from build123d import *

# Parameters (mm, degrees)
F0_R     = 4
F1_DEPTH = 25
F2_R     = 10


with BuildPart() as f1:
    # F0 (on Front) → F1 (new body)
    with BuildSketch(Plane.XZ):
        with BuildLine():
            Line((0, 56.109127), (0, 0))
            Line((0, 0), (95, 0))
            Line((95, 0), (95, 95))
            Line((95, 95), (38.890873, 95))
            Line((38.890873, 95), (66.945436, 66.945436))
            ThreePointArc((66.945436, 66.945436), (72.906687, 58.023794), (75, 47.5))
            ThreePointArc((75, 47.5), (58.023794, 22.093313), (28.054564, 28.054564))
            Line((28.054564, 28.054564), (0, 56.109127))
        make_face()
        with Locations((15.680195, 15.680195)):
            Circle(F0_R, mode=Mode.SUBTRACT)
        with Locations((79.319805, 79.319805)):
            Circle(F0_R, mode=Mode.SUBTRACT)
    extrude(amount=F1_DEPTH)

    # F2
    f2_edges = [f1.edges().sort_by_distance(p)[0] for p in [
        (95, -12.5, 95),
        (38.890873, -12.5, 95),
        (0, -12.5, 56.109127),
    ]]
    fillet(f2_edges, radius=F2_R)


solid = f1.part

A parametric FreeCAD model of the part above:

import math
import FreeCAD as App
import Part
import Sketcher
from FreeCAD import Vector
Q = App.Units.Quantity


def edges_at(feature, points):
    """Names of the edges that pass closest to the given points."""
    edges = feature.Shape.Edges
    near = lambda p: min(range(len(edges)), key=lambda i: edges[i].distToShape(Part.Vertex(*p))[0])
    return sorted({f"Edge{near(p) + 1}" for p in points})

doc = App.newDocument("Part")
body = doc.addObject("PartDesign::Body", "Body")

# Sketch on XZ plane
sketch1 = doc.addObject("Sketcher::SketchObject", "Sketch")
body.addObject(sketch1)
sketch1.AttachmentSupport = (doc.XZ_Plane, [""])
sketch1.MapMode = "FlatFace"
sketch1.addGeometry(Part.LineSegment(Vector(0, 56.1, 0), Vector(0, 0, 0)), False)
sketch1.addGeometry(Part.LineSegment(Vector(0, 0, 0), Vector(95, 0, 0)), False)
sketch1.addGeometry(Part.LineSegment(Vector(95, 0, 0), Vector(95, 95, 0)), False)
sketch1.addGeometry(Part.LineSegment(Vector(95, 95, 0), Vector(38.9, 95, 0)), False)
sketch1.addGeometry(Part.LineSegment(Vector(38.9, 95, 0), Vector(66.9, 66.9, 0)), False)
sketch1.addGeometry(Part.ArcOfCircle(Part.Circle(Vector(47.5, 47.5, 0), Vector(0, 0, 1), 27.5), math.radians(0), math.radians(45)), False)
sketch1.addGeometry(Part.ArcOfCircle(Part.Circle(Vector(47.5, 47.5, 0), Vector(0, 0, 1), 27.5), math.radians(-135), math.radians(0)), False)
sketch1.addGeometry(Part.LineSegment(Vector(28.1, 28.1, 0), Vector(0, 56.1, 0)), False)
sketch1.addGeometry(Part.Circle(Vector(15.7, 15.7, 0), Vector(0, 0, 1), 4), False)
sketch1.addGeometry(Part.Circle(Vector(79.3, 79.3, 0), Vector(0, 0, 1), 4), False)
sketch1.addConstraint(Sketcher.Constraint("Coincident", 0, 2, 1, 1))
sketch1.addConstraint(Sketcher.Constraint("Coincident", 1, 2, 2, 1))
sketch1.addConstraint(Sketcher.Constraint("Coincident", 2, 2, 3, 1))
sketch1.addConstraint(Sketcher.Constraint("Coincident", 3, 2, 4, 1))
sketch1.addConstraint(Sketcher.Constraint("Tangent", 4, 2, 5, 2))
sketch1.addConstraint(Sketcher.Constraint("Tangent", 5, 1, 6, 2))
sketch1.addConstraint(Sketcher.Constraint("Tangent", 6, 1, 7, 1))
sketch1.addConstraint(Sketcher.Constraint("Coincident", 7, 2, 0, 1))
sketch1.addConstraint(Sketcher.Constraint("Vertical", 0))
sketch1.addConstraint(Sketcher.Constraint("Horizontal", 1))
sketch1.addConstraint(Sketcher.Constraint("Vertical", 2))
sketch1.addConstraint(Sketcher.Constraint("Horizontal", 3))
sketch1.addConstraint(Sketcher.Constraint("Coincident", 0, 2, -1, 1))
sketch1.addConstraint(Sketcher.Constraint("Equal", 5, 6))
sketch1.addConstraint(Sketcher.Constraint("Equal", 8, 9))
sketch1.addConstraint(Sketcher.Constraint("Parallel", 4, 7))
sketch1.addConstraint(Sketcher.Constraint("Horizontal", 6, 3, 5, 1))
sketch1.addConstraint(Sketcher.Constraint("Equal", 3, 0))
sketch1.addConstraint(Sketcher.Constraint("Equal", 1, 2))
sketch1.addConstraint(Sketcher.Constraint("Equal", 4, 7))
sketch1.addConstraint(Sketcher.Constraint("Diameter", 8, Q("8 mm")))
sketch1.addConstraint(Sketcher.Constraint("Radius", 5, Q("27.499999 mm")))
sketch1.addConstraint(Sketcher.Constraint("DistanceX", 1, 1, 1, 2, Q("95 mm")))
sketch1.addConstraint(Sketcher.Constraint("DistanceX", -1, 1, 5, 1, Q("75 mm")))
sketch1.addConstraint(Sketcher.Constraint("DistanceX", 8, 3, 9, 3, Q("63.63961 mm")))
sketch1.addConstraint(Sketcher.Constraint("DistanceY", 8, 3, 9, 3, Q("63.63961 mm")))
sketch1.addConstraint(Sketcher.Constraint("DistanceX", 8, 3, 3, 2, Q("23.210678 mm")))
sketch1.addConstraint(Sketcher.Constraint("DistanceY", 4, 2, 9, 3, Q("12.374369 mm")))
pad1 = doc.addObject("PartDesign::Pad", "Pad")
body.addObject(pad1)
pad1.Profile = sketch1
pad1.Length = 25
doc.recompute()

fillet = doc.addObject("PartDesign::Fillet", "Fillet")
body.addObject(fillet)
fillet.Base = (pad1, edges_at(pad1, [(95, -12.5, 95), (38.891, -12.5, 95), (0, -12.5, 56.109)]))
fillet.Radius = 10

doc.recompute()
